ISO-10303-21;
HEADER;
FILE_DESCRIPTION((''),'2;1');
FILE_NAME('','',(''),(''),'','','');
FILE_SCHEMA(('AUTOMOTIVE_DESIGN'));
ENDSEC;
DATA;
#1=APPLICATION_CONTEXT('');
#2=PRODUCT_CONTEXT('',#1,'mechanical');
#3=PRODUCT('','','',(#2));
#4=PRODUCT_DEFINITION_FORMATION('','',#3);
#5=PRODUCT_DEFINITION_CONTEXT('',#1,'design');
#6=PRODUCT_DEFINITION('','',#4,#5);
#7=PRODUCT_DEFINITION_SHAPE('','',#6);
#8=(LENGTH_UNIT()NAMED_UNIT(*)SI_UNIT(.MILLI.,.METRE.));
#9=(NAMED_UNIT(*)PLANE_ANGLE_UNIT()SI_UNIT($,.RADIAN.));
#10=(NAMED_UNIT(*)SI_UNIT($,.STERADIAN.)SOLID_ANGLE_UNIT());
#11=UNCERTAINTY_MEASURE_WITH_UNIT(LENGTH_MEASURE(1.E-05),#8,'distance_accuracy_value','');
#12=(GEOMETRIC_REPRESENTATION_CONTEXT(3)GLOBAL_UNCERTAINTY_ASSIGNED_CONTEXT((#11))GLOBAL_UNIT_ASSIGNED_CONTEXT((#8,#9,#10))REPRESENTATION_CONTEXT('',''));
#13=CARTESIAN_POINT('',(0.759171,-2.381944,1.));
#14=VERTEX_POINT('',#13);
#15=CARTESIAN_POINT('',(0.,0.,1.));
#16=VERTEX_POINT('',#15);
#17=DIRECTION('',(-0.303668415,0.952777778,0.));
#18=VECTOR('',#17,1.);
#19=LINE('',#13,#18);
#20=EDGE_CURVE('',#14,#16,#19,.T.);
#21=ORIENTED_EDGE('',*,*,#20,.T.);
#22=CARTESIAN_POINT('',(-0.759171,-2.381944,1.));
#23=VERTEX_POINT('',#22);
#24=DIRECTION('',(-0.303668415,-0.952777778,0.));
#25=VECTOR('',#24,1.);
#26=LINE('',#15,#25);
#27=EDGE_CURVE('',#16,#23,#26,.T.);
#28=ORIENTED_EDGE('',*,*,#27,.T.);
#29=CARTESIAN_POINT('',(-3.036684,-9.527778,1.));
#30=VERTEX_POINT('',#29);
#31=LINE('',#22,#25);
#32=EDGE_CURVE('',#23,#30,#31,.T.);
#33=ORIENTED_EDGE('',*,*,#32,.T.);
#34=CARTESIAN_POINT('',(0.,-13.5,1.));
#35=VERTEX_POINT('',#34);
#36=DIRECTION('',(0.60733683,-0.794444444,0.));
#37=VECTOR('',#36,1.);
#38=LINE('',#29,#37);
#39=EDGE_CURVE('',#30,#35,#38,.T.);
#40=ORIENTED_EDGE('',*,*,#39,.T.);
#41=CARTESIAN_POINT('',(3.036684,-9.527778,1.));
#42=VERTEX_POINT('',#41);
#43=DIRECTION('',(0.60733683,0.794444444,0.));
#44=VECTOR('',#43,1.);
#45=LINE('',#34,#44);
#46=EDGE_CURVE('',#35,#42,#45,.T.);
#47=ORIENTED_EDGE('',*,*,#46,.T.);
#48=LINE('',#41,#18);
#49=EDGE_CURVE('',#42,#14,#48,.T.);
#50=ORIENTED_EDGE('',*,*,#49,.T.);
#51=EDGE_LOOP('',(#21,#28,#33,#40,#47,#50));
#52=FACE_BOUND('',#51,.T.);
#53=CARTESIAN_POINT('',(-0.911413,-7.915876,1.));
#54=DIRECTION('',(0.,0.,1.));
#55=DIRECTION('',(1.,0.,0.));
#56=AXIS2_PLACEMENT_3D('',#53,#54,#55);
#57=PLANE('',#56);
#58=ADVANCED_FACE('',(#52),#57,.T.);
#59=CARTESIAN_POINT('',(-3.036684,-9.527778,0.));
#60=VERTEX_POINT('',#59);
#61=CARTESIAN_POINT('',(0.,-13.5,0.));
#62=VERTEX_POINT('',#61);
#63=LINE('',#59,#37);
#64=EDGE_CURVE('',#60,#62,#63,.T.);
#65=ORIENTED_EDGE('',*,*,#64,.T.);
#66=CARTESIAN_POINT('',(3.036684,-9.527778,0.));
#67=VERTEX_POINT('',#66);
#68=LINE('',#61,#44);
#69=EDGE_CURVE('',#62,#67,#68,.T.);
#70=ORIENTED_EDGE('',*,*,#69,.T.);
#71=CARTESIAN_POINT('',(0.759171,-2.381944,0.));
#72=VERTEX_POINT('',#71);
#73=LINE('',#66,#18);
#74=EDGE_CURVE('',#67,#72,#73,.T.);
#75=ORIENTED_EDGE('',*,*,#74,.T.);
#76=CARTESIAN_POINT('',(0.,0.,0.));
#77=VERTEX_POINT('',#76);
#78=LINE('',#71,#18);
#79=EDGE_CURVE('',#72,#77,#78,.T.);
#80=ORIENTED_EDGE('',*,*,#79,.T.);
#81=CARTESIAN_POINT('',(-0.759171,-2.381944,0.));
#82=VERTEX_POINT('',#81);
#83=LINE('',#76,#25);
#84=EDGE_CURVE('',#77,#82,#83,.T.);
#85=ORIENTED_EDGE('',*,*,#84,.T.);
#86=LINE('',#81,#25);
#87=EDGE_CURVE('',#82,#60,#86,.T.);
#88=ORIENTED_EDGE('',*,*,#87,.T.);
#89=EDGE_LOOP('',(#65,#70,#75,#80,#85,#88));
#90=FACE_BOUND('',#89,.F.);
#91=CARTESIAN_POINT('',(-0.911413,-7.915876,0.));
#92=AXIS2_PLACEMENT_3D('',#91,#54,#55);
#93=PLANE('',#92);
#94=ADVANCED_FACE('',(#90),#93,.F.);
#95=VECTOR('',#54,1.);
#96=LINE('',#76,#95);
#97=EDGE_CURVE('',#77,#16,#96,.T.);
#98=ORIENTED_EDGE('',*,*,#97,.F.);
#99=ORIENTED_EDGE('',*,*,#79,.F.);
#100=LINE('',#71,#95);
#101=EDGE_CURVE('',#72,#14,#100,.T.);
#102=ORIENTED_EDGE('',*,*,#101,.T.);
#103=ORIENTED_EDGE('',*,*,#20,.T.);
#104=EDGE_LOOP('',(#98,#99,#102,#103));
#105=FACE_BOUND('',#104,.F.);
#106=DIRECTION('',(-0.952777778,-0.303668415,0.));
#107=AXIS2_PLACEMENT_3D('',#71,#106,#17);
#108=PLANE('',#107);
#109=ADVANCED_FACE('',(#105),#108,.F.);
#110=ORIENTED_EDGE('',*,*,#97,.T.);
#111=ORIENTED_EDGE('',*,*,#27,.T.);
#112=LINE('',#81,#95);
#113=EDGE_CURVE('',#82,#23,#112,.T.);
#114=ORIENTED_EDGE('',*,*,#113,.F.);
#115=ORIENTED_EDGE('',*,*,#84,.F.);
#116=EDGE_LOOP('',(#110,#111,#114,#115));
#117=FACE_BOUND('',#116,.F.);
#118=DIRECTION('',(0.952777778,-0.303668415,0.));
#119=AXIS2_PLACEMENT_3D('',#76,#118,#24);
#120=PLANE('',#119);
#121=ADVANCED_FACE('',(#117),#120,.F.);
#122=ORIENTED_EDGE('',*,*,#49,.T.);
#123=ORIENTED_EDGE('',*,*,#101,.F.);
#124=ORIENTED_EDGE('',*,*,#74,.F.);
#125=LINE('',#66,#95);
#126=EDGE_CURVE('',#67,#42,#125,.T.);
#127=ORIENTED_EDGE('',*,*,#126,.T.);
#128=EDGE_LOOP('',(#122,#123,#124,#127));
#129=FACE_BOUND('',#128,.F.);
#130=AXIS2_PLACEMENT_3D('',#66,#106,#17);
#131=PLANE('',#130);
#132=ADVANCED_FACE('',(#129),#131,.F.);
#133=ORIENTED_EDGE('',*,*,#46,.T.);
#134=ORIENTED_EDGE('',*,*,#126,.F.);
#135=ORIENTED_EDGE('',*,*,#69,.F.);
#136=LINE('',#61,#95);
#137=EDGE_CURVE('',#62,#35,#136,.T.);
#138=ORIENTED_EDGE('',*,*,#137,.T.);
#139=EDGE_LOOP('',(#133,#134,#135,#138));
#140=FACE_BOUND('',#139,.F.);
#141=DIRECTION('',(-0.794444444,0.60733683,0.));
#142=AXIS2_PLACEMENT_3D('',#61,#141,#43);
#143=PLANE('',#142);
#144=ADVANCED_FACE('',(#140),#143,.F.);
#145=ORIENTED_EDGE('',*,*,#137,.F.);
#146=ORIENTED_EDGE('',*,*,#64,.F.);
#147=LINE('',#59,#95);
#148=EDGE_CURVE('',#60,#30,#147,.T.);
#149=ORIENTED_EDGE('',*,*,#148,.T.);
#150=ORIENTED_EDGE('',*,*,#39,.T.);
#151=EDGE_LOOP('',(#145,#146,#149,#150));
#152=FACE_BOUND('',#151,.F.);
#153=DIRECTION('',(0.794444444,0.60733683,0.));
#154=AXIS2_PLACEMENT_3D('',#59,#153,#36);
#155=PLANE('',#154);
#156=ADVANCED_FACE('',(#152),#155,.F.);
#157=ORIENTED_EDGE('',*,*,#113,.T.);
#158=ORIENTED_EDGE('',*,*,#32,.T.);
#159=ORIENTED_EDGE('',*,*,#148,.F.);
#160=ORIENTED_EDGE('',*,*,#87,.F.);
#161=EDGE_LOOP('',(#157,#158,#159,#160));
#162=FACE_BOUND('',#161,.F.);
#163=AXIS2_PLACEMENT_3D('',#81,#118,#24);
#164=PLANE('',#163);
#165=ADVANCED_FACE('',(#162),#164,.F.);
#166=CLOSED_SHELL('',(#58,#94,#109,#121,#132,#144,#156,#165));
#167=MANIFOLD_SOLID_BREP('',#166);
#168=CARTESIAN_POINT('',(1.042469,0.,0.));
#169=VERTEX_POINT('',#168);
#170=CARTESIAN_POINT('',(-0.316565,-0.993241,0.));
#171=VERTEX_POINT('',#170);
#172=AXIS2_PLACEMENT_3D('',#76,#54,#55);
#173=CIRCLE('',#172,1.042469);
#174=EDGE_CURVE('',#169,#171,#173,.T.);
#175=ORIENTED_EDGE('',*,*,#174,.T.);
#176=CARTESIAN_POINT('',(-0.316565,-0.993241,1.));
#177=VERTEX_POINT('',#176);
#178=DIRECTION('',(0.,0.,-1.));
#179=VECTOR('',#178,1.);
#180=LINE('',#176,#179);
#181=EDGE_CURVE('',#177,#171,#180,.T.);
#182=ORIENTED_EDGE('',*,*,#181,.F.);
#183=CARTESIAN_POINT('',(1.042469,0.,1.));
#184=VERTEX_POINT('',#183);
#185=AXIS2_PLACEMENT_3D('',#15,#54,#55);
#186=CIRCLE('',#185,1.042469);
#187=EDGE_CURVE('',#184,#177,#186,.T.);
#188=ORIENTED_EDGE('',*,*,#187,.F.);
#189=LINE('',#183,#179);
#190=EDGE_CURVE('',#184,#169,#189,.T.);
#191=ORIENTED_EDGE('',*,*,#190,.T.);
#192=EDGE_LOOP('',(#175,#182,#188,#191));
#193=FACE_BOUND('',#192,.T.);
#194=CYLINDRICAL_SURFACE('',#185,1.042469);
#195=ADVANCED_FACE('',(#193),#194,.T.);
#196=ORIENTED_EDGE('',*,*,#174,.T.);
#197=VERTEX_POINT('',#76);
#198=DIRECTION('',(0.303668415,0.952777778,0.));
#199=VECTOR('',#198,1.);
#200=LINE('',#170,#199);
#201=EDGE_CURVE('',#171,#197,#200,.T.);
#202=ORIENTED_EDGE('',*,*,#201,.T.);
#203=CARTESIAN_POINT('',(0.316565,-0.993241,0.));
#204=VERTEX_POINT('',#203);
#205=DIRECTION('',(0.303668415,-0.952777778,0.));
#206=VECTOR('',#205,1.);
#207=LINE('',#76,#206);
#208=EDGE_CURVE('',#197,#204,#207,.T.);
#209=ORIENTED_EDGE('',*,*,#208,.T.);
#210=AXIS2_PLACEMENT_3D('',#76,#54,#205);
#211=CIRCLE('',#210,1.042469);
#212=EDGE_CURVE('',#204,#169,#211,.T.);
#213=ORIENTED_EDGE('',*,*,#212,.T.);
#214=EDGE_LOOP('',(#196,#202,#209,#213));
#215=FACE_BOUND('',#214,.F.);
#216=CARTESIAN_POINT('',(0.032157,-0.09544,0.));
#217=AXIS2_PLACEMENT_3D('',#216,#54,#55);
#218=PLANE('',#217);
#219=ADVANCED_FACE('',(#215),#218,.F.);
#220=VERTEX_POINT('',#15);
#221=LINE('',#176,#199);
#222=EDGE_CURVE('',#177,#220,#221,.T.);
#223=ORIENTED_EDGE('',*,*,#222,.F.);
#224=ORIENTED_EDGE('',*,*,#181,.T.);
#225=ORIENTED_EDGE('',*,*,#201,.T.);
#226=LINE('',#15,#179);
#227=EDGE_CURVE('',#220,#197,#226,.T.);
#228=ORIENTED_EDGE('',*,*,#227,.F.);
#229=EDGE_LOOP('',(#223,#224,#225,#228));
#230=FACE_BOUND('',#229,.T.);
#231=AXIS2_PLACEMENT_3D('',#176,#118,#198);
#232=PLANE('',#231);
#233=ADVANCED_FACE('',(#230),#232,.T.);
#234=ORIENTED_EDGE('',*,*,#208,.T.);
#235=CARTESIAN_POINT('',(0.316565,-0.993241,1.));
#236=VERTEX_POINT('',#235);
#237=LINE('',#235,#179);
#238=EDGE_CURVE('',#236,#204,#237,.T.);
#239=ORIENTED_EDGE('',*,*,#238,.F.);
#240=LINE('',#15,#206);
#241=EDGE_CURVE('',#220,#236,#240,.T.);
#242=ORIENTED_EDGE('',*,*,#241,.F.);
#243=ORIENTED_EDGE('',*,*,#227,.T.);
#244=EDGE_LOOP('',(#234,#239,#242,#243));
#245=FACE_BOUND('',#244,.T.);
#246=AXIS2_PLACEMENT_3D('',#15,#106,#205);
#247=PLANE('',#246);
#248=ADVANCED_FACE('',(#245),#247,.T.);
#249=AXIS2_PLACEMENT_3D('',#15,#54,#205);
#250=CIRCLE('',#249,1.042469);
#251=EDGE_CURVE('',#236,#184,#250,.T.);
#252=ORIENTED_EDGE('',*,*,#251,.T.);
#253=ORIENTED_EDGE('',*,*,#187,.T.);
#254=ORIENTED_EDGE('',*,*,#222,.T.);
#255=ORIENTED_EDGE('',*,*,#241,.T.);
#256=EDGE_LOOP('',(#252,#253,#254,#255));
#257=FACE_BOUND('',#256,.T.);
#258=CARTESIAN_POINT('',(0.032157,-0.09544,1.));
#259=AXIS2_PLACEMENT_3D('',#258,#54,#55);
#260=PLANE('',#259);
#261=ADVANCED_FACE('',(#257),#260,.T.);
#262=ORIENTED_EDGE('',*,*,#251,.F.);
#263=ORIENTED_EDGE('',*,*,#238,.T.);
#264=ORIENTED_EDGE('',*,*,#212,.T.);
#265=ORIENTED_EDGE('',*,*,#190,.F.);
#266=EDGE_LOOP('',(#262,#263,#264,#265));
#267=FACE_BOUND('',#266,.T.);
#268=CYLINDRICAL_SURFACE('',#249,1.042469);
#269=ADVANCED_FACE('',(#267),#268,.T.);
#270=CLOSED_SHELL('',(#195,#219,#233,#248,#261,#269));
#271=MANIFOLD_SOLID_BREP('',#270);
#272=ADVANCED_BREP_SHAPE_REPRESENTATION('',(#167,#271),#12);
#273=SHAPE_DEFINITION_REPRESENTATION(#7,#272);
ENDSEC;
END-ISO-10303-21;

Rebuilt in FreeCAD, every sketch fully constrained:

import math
import FreeCAD as App
import Part
import Sketcher

V = App.Vector
Q = App.Units.Quantity


def add_polygon(sketch, points):
    """Adds a closed chain of lines whose ends are joined by coincident constraints."""
    first, n = sketch.GeometryCount, len(points)
    for a, b in zip(points, points[1:] + points[:1]):
        sketch.addGeometry(Part.LineSegment(App.Vector(*a, 0), App.Vector(*b, 0)), False)
    for i in range(n):
        sketch.addConstraint(Sketcher.Constraint("Coincident", first + i, 2, first + (i + 1) % n, 1))

doc = App.newDocument("Part")
body = doc.addObject("PartDesign::Body", "Body")

# Sketch on XY plane
sketch1 = doc.addObject("Sketcher::SketchObject", "Sketch")
body.addObject(sketch1)
sketch1.AttachmentSupport = (doc.XY_Plane, [""])
sketch1.MapMode = "FlatFace"
add_polygon(sketch1, [(-0.8, -2.4), (-3, -9.5), (0, -13.5), (3, -9.5), (0.8, -2.4), (0, 0)])  # lines 0-5
sketch1.addConstraint([
    Sketcher.Constraint("Coincident", 4, 2, -1, 1),
    Sketcher.Constraint("Symmetric", 0, 2, 2, 2, -2),
    Sketcher.Constraint("Symmetric", 3, 2, 5, 2, -2),
    Sketcher.Constraint("PointOnObject", 1, 2, -2),
    Sketcher.Constraint("Parallel", 3, 4),
    Sketcher.Constraint("Distance", 1, Q("5 mm")),
    Sketcher.Constraint("Distance", 0, Q("7.5 mm")),
    Sketcher.Constraint("Distance", 4, Q("2.5 mm")),
    Sketcher.Constraint("DistanceY", 1, 2, -1, 1, Q("13.5 mm")),
])
pad1 = doc.addObject("PartDesign::Pad", "Pad")
body.addObject(pad1)
pad1.Profile = sketch1
pad1.Length = 1
body2 = doc.addObject("PartDesign::Body", "Body001")

# Sketch on XY plane
sketch2 = doc.addObject("Sketcher::SketchObject", "Sketch001")
body2.addObject(sketch2)
sketch2.AttachmentSupport = (doc.getObject("XY_Plane001"), [""])
sketch2.MapMode = "FlatFace"
sketch2.AttachmentOffset = App.Placement(V(0, 0, 1), App.Rotation())
sketch2.addGeometry([
    Part.ArcOfCircle(Part.Circle(V(0, 0, 0), V(0, 0, 1), 1), math.radians(-72), math.radians(0)),
    Part.ArcOfCircle(Part.Circle(V(0, 0, 0), V(0, 0, 1), 1), math.radians(0), math.radians(252)),
    Part.LineSegment(V(-0.3, -1, 0), V(0, 0, 0)),
    Part.LineSegment(V(0, 0, 0), V(0.3, -1, 0)),
], False)
sketch2.addConstraint([
    Sketcher.Constraint("Tangent", 0, 2, 1, 1),
    Sketcher.Constraint("Coincident", 1, 2, 2, 1),
    Sketcher.Constraint("Coincident", 2, 2, 3, 1),
    Sketcher.Constraint("Coincident", 3, 2, 0, 1),
    Sketcher.Constraint("Coincident", 0, 3, -1, 1),
    Sketcher.Constraint("Coincident", 2, 2, -1, 1),
    Sketcher.Constraint("Equal", 0, 1),
    Sketcher.Constraint("PointOnObject", 0, 2, -1),
    Sketcher.Constraint("Horizontal", 1, 2, 3, 2),
    Sketcher.Constraint("Radius", 0, Q("1.042469 mm")),
    Sketcher.Constraint("DistanceY", 1, 2, -1, 1, Q("0.993241 mm")),
])
pad2 = doc.addObject("PartDesign::Pad", "Pad001")
body2.addObject(pad2)
pad2.Profile = sketch2
pad2.Length = 1
pad2.Reversed = True

doc.recompute()
